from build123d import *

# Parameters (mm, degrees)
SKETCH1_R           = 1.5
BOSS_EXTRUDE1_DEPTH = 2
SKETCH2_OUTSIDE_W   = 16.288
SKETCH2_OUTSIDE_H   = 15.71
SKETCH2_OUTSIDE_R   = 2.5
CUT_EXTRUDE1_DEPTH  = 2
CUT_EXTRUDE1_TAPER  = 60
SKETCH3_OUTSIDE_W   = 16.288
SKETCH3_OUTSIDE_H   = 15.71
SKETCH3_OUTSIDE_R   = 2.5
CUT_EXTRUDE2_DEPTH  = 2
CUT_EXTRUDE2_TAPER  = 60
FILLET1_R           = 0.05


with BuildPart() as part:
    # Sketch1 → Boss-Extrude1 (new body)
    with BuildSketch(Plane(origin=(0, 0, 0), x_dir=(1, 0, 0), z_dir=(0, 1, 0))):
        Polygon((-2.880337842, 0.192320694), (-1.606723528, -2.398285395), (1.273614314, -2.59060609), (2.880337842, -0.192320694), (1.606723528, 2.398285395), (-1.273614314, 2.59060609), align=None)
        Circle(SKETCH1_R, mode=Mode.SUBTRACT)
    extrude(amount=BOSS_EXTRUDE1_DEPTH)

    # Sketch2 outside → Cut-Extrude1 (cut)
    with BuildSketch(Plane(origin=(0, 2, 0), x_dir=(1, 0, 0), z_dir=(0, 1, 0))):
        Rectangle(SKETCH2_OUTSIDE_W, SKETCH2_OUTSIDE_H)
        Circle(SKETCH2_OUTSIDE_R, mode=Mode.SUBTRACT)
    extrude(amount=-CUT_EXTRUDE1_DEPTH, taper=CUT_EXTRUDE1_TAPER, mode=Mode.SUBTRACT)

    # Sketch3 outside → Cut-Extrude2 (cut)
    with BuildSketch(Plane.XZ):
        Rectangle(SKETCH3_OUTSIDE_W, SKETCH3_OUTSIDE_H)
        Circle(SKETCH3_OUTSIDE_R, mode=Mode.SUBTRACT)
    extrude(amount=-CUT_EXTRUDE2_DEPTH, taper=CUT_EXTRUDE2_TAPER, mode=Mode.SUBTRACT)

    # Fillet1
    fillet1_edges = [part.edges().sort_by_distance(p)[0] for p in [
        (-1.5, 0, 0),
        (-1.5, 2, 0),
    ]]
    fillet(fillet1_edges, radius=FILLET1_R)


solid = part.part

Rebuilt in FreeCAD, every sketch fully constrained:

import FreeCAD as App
import Part
import Sketcher
Q = App.Units.Quantity


def edges_at(feature, points):
    """Names of the edges that pass closest to the given points."""
    edges = feature.Shape.Edges
    near = lambda p: min(range(len(edges)), key=lambda i: edges[i].distToShape(Part.Vertex(*p))[0])
    return sorted({f"Edge{near(p) + 1}" for p in points})


def add_polygon(sketch, points):
    """Adds a closed chain of lines whose ends are joined by coincident constraints."""
    first, n = sketch.GeometryCount, len(points)
    for a, b in zip(points, points[1:] + points[:1]):
        sketch.addGeometry(Part.LineSegment(App.Vector(*a, 0), App.Vector(*b, 0)), False)
    for i in range(n):
        sketch.addConstraint(Sketcher.Constraint("Coincident", first + i, 2, first + (i + 1) % n, 1))

doc = App.newDocument("Part")
body = doc.addObject("PartDesign::Body", "Body")

# Sketch on XZ plane
sketch1 = doc.addObject("Sketcher::SketchObject", "Sketch")
body.addObject(sketch1)
sketch1.AttachmentSupport = (doc.XZ_Plane, [""])
sketch1.MapMode = "FlatFace"
add_polygon(sketch1, [(-2.9, -0.2), (-1.6, 2.4), (1.3, 2.6), (2.9, 0.2), (1.6, -2.4), (-1.3, -2.6)])  # lines 0-5
sketch1.addGeometry(Part.Circle(App.Vector(0, 0, 0), App.Vector(0, 0, 1), 1.5), False)  # 6
sketch1.addConstraint([
    Sketcher.Constraint("Coincident", 6, 3, -1, 1),
    Sketcher.Constraint("Symmetric", 0, 2, 3, 2, -1, 1),
    Sketcher.Constraint("Symmetric", 1, 2, 4, 2, -1, 1),
    Sketcher.Constraint("Symmetric", 2, 2, 5, 2, -1, 1),
    Sketcher.Constraint("Equal", 0, 1),
    Sketcher.Constraint("Equal", 1, 2),
    Sketcher.Constraint("Diameter", 6, Q("3 mm")),
    Sketcher.Constraint("Distance", 0, Q("2.886751 mm")),
    Sketcher.Constraint("DistanceY", -1, 1, 2, 2, Q("0.192321 mm")),
    Sketcher.Constraint("DistanceY", 0, 2, 1, 2, Q("0.192321 mm")),
    Sketcher.Constraint("DistanceX", 0, 2, 2, 2, Q("4.487061 mm")),
])
pad1 = doc.addObject("PartDesign::Pad", "Pad")
body.addObject(pad1)
pad1.Profile = sketch1
pad1.Length = 2
pad1.Reversed = True

# Sketch on XZ plane
sketch2 = doc.addObject("Sketcher::SketchObject", "Sketch001")
body.addObject(sketch2)
sketch2.AttachmentSupport = (doc.XZ_Plane, [""])
sketch2.MapMode = "FlatFace"
sketch2.AttachmentOffset = App.Placement(App.Vector(0, 0, -2), App.Rotation())
add_polygon(sketch2, [(-8.1, -7.9), (-8.1, 7.9), (8.1, 7.9), (8.1, -7.9)])  # lines 0-3
sketch2.addGeometry(Part.Circle(App.Vector(0, 0, 0), App.Vector(0, 0, 1), 2.5), False)  # 4
sketch2.addConstraint([
    Sketcher.Constraint("Vertical", 0),
    Sketcher.Constraint("Horizontal", 1),
    Sketcher.Constraint("Vertical", 2),
    Sketcher.Constraint("Horizontal", 3),
    Sketcher.Constraint("Coincident", 4, 3, -1, 1),
    Sketcher.Constraint("Symmetric", 0, 2, 2, 2, -1, 1),
    Sketcher.Constraint("Diameter", 4, Q("5 mm")),
    Sketcher.Constraint("DistanceY", 0, 1, 0, 2, Q("15.71 mm")),
    Sketcher.Constraint("DistanceX", 1, 1, 1, 2, Q("16.288 mm")),
])
pocket1 = doc.addObject("PartDesign::Pocket", "Pocket")
body.addObject(pocket1)
pocket1.Profile = sketch2
pocket1.Length = 2
pocket1.Reversed = True
pocket1.TaperAngle = 60

# Sketch on XZ plane
sketch3 = doc.addObject("Sketcher::SketchObject", "Sketch002")
body.addObject(sketch3)
sketch3.AttachmentSupport = (doc.XZ_Plane, [""])
sketch3.MapMode = "FlatFace"
add_polygon(sketch3, [(-8.1, 7.9), (-8.1, -7.9), (8.1, -7.9), (8.1, 7.9)])  # lines 0-3
sketch3.addGeometry(Part.Circle(App.Vector(0, 0, 0), App.Vector(0, 0, 1), 2.5), False)  # 4
sketch3.addConstraint([
    Sketcher.Constraint("Vertical", 0),
    Sketcher.Constraint("Horizontal", 1),
    Sketcher.Constraint("Vertical", 2),
    Sketcher.Constraint("Horizontal", 3),
    Sketcher.Constraint("Coincident", 4, 3, -1, 1),
    Sketcher.Constraint("Symmetric", 0, 2, 2, 2, -1, 1),
    Sketcher.Constraint("Diameter", 4, Q("5 mm")),
    Sketcher.Constraint("DistanceY", 0, 2, 0, 1, Q("15.71 mm")),
    Sketcher.Constraint("DistanceX", 1, 1, 1, 2, Q("16.288 mm")),
])
pocket2 = doc.addObject("PartDesign::Pocket", "Pocket001")
body.addObject(pocket2)
pocket2.Profile = sketch3
pocket2.Length = 2
pocket2.TaperAngle = 60
doc.recompute()

fillet = doc.addObject("PartDesign::Fillet", "Fillet")
body.addObject(fillet)
fillet.Base = (pocket2, edges_at(pocket2, [(-1.5, 0, 0), (-1.5, 2, 0)]))
fillet.Radius = 0.05

doc.recompute()
